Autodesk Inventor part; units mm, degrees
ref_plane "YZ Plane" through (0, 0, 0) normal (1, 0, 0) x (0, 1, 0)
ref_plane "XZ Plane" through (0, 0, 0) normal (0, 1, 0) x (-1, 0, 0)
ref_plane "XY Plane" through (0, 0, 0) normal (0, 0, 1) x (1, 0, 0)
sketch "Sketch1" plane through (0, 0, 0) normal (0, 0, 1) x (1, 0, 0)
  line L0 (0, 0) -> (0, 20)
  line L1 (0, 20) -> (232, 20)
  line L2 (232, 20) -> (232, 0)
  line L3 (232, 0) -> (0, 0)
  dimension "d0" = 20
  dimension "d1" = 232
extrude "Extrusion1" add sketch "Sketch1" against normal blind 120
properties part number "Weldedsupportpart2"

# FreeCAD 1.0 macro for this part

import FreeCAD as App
import Part
import Sketcher
from FreeCAD import Vector
Q = App.Units.Quantity

doc = App.newDocument("Part")
body = doc.addObject("PartDesign::Body", "Body")

sketch1 = body.newObject("Sketcher::SketchObject", "Sketch")
sketch1.AttachmentSupport = (doc.getObject("XY_Plane"), [""])
sketch1.MapMode = "FlatFace"
sketch1.addGeometry(Part.LineSegment(Vector(0, 20, 0), Vector(0, 0, 0)), False)
sketch1.addGeometry(Part.LineSegment(Vector(0, 0, 0), Vector(232, 0, 0)), False)
sketch1.addGeometry(Part.LineSegment(Vector(232, 0, 0), Vector(232, 20, 0)), False)
sketch1.addGeometry(Part.LineSegment(Vector(232, 20, 0), Vector(0, 20, 0)), False)
sketch1.addConstraint(Sketcher.Constraint("Coincident", 0, 2, 1, 1))
sketch1.addConstraint(Sketcher.Constraint("Coincident", 1, 2, 2, 1))
sketch1.addConstraint(Sketcher.Constraint("Coincident", 2, 2, 3, 1))
sketch1.addConstraint(Sketcher.Constraint("Coincident", 3, 2, 0, 1))
sketch1.addConstraint(Sketcher.Constraint("Vertical", 0))
sketch1.addConstraint(Sketcher.Constraint("Horizontal", 1))
sketch1.addConstraint(Sketcher.Constraint("Vertical", 2))
sketch1.addConstraint(Sketcher.Constraint("Horizontal", 3))
sketch1.addConstraint(Sketcher.Constraint("Coincident", 0, 2, -1, 1))
sketch1.addConstraint(Sketcher.Constraint("DistanceX", 1, 1, 1, 2, Q("232 mm")))
sketch1.addConstraint(Sketcher.Constraint("DistanceY", 0, 2, 0, 1, Q("20 mm")))
pad1 = body.newObject("PartDesign::Pad", "Pad")
pad1.Profile = sketch1
pad1.Length = 120
pad1.Reversed = True

doc.recompute()
